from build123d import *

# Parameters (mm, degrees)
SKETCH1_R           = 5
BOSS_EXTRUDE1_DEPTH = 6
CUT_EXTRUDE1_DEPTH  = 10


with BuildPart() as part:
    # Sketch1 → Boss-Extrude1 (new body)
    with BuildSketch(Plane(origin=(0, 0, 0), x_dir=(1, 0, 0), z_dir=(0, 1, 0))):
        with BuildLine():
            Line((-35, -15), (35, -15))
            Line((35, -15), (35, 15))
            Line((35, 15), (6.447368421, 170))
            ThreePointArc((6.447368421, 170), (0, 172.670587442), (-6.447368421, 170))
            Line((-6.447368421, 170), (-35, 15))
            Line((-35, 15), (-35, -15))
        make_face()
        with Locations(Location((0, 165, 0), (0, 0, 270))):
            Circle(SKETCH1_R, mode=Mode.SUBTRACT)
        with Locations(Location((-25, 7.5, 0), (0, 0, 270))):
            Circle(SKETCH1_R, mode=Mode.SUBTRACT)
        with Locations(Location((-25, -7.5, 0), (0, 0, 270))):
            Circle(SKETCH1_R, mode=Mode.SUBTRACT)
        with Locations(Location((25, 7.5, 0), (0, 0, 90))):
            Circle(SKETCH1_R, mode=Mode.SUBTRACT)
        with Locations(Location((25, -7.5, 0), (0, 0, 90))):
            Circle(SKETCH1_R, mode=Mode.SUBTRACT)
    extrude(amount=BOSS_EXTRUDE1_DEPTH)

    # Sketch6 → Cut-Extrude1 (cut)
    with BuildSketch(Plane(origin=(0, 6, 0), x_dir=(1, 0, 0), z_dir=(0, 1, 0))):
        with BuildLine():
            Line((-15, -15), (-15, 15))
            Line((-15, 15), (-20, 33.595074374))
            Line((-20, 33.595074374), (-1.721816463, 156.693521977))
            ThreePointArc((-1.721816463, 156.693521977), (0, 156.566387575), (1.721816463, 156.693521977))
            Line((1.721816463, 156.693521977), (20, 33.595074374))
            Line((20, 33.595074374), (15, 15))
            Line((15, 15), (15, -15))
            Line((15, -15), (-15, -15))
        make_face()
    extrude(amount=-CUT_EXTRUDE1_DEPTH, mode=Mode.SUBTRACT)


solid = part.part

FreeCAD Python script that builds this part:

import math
import FreeCAD as App
import Part
import Sketcher

V = App.Vector
Q = App.Units.Quantity

doc = App.newDocument("Part")
body = doc.addObject("PartDesign::Body", "Body")

# Sketch on XZ plane
sketch1 = body.newObject("Sketcher::SketchObject", "Sketch")
sketch1.AttachmentSupport = (doc.getObject("XZ_Plane"), [""])
sketch1.MapMode = "FlatFace"
sketch1.addGeometry(Part.LineSegment(V(-35, 15, 0), V(35, 15, 0)), False)
sketch1.addGeometry(Part.LineSegment(V(35, 15, 0), V(35, -15, 0)), False)
sketch1.addGeometry(Part.LineSegment(V(35, -15, 0), V(6, -170, 0)), False)
sketch1.addGeometry(Part.ArcOfCircle(Part.Circle(V(0, -164, 0), V(0, 0, 1), 9), math.radians(-135), math.radians(-45)), False)
sketch1.addGeometry(Part.LineSegment(V(-6, -170, 0), V(-35, -15, 0)), False)
sketch1.addGeometry(Part.LineSegment(V(-35, -15, 0), V(-35, 15, 0)), False)
sketch1.addGeometry(Part.Circle(V(-25, 8, 0), V(0, 0, 1), 5), False)
sketch1.addGeometry(Part.Circle(V(-25, -8, 0), V(0, 0, 1), 5), False)
sketch1.addGeometry(Part.Circle(V(25, 8, 0), V(0, 0, 1), 5), False)
sketch1.addGeometry(Part.Circle(V(25, -8, 0), V(0, 0, 1), 5), False)
sketch1.addGeometry(Part.Circle(V(0, -165, 0), V(0, 0, 1), 5), False)
sketch1.addConstraint(Sketcher.Constraint("Coincident", 0, 2, 1, 1))
sketch1.addConstraint(Sketcher.Constraint("Coincident", 1, 2, 2, 1))
sketch1.addConstraint(Sketcher.Constraint("Coincident", 2, 2, 3, 2))
sketch1.addConstraint(Sketcher.Constraint("Coincident", 3, 1, 4, 1))
sketch1.addConstraint(Sketcher.Constraint("Coincident", 4, 2, 5, 1))
sketch1.addConstraint(Sketcher.Constraint("Coincident", 5, 2, 0, 1))
sketch1.addConstraint(Sketcher.Constraint("Horizontal", 0))
sketch1.addConstraint(Sketcher.Constraint("Vertical", 1))
sketch1.addConstraint(Sketcher.Constraint("Vertical", 5))
sketch1.addConstraint(Sketcher.Constraint("Equal", 6, 7))
sketch1.addConstraint(Sketcher.Constraint("Equal", 7, 8))
sketch1.addConstraint(Sketcher.Constraint("Equal", 8, 9))
sketch1.addConstraint(Sketcher.Constraint("Equal", 9, 10))
sketch1.addConstraint(Sketcher.Constraint("Symmetric", 7, 3, 8, 3, -1, 1))
sketch1.addConstraint(Sketcher.Constraint("Symmetric", 6, 3, 9, 3, -1, 1))
sketch1.addConstraint(Sketcher.Constraint("Symmetric", 0, 2, 4, 2, -1, 1))
sketch1.addConstraint(Sketcher.Constraint("Symmetric", 6, 3, 8, 3, -2))
sketch1.addConstraint(Sketcher.Constraint("Symmetric", 2, 2, 3, 1, -2))
sketch1.addConstraint(Sketcher.Constraint("PointOnObject", 10, 3, -2))
sketch1.addConstraint(Sketcher.Constraint("Horizontal", 1, 2, 4, 2))
sketch1.addConstraint(Sketcher.Constraint("Diameter", 6, Q("10 mm")))
sketch1.addConstraint(Sketcher.Constraint("DistanceX", 0, 1, 0, 2, Q("70 mm")))
sketch1.addConstraint(Sketcher.Constraint("DistanceY", 1, 2, 1, 1, Q("30 mm")))
sketch1.addConstraint(Sketcher.Constraint("DistanceX", 6, 3, -1, 1, Q("25 mm")))
sketch1.addConstraint(Sketcher.Constraint("DistanceY", 10, 3, -1, 1, Q("165 mm")))
sketch1.addConstraint(Sketcher.Constraint("DistanceY", 2, 2, -1, 1, Q("170 mm")))
sketch1.addConstraint(Sketcher.Constraint("DistanceY", 7, 3, 6, 3, Q("15 mm")))
sketch1.addConstraint(Sketcher.Constraint("Radius", 3, Q("9.117956 mm")))
sketch1.addConstraint(Sketcher.Constraint("Distance", 2, Q("157.607908 mm")))
pad1 = body.newObject("PartDesign::Pad", "Pad")
pad1.Profile = sketch1
pad1.Length = 6
pad1.Reversed = True

# Sketch on XZ plane
sketch2 = body.newObject("Sketcher::SketchObject", "Sketch001")
sketch2.AttachmentSupport = (doc.getObject("XZ_Plane"), [""])
sketch2.MapMode = "FlatFace"
sketch2.AttachmentOffset = App.Placement(V(0, 0, -6), App.Rotation())
sketch2.addGeometry(Part.LineSegment(V(-15, -15, 0), V(-15, 15, 0)), False)
sketch2.addGeometry(Part.LineSegment(V(-15, 15, 0), V(15, 15, 0)), False)
sketch2.addGeometry(Part.LineSegment(V(15, 15, 0), V(15, -15, 0)), False)
sketch2.addGeometry(Part.LineSegment(V(15, -15, 0), V(20, -33.6, 0)), False)
sketch2.addGeometry(Part.LineSegment(V(20, -33.6, 0), V(1.7, -156.7, 0)), False)
sketch2.addGeometry(Part.ArcOfCircle(Part.Circle(V(0, -168.3, 0), V(0, 0, 1), 11.7), math.radians(81.55), math.radians(98.45)), False)
sketch2.addGeometry(Part.LineSegment(V(-1.7, -156.7, 0), V(-20, -33.6, 0)), False)
sketch2.addGeometry(Part.LineSegment(V(-20, -33.6, 0), V(-15, -15, 0)), False)
sketch2.addConstraint(Sketcher.Constraint("Coincident", 0, 2, 1, 1))
sketch2.addConstraint(Sketcher.Constraint("Coincident", 1, 2, 2, 1))
sketch2.addConstraint(Sketcher.Constraint("Coincident", 2, 2, 3, 1))
sketch2.addConstraint(Sketcher.Constraint("Coincident", 3, 2, 4, 1))
sketch2.addConstraint(Sketcher.Constraint("Coincident", 4, 2, 5, 1))
sketch2.addConstraint(Sketcher.Constraint("Coincident", 5, 2, 6, 1))
sketch2.addConstraint(Sketcher.Constraint("Coincident", 6, 2, 7, 1))
sketch2.addConstraint(Sketcher.Constraint("Coincident", 7, 2, 0, 1))
sketch2.addConstraint(Sketcher.Constraint("Vertical", 0))
sketch2.addConstraint(Sketcher.Constraint("Horizontal", 1))
sketch2.addConstraint(Sketcher.Constraint("Vertical", 2))
sketch2.addConstraint(Sketcher.Constraint("Symmetric", 0, 2, 2, 2, -1, 1))
sketch2.addConstraint(Sketcher.Constraint("Symmetric", 4, 2, 5, 2, -2))
sketch2.addConstraint(Sketcher.Constraint("Symmetric", 3, 2, 6, 2, -2))
sketch2.addConstraint(Sketcher.Constraint("Horizontal", 2, 2, 7, 2))
sketch2.addConstraint(Sketcher.Constraint("Equal", 1, 0))
sketch2.addConstraint(Sketcher.Constraint("DistanceX", 1, 1, 1, 2, Q("30 mm")))
sketch2.addConstraint(Sketcher.Constraint("DistanceX", -1, 1, 3, 2, Q("20 mm")))
sketch2.addConstraint(Sketcher.Constraint("Radius", 5, Q("11.723086 mm")))
sketch2.addConstraint(Sketcher.Constraint("DistanceY", 5, 3, 3, 2, Q("134.694399 mm")))
sketch2.addConstraint(Sketcher.Constraint("DistanceY", 4, 2, -1, 1, Q("156.693522 mm")))
sketch2.addConstraint(Sketcher.Constraint("DistanceY", 5, 3, 4, 2, Q("11.595952 mm")))
pocket1 = body.newObject("PartDesign::Pocket", "Pocket")
pocket1.Profile = sketch2
pocket1.Length = 10
pocket1.Reversed = True

doc.recompute()
